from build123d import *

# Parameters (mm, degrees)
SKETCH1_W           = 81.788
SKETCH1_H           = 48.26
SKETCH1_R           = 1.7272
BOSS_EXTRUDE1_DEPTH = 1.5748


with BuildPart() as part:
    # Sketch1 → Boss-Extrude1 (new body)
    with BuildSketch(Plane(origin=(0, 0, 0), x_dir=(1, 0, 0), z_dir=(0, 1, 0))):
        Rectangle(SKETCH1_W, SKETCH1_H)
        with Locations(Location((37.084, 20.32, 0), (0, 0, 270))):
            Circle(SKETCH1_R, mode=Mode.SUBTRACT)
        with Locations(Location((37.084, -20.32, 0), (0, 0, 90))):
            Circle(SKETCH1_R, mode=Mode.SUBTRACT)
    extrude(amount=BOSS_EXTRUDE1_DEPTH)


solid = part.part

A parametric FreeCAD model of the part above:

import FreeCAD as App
import Part
import Sketcher
Q = App.Units.Quantity


def add_polygon(sketch, points):
    """Adds a closed chain of lines whose ends are joined by coincident constraints."""
    first, n = sketch.GeometryCount, len(points)
    for a, b in zip(points, points[1:] + points[:1]):
        sketch.addGeometry(Part.LineSegment(App.Vector(*a, 0), App.Vector(*b, 0)), False)
    for i in range(n):
        sketch.addConstraint(Sketcher.Constraint("Coincident", first + i, 2, first + (i + 1) % n, 1))

doc = App.newDocument("Part")
params = doc.addObject("Spreadsheet::Sheet", "Params")
for row, (alias, value) in enumerate([
    ("sketch1_diameter", "0.136 in"),
    ("sketch1_height", "1.9 in"),
    ("sketch1_width", "3.22 in"),
    ("pad1_length", "0.062 in"),
], start=1):
    params.set(f"A{row}", alias)
    params.set(f"B{row}", "=" + value)
    params.setAlias(f"B{row}", alias)

body = doc.addObject("PartDesign::Body", "Body")

# Sketch on XZ plane
sketch1 = doc.addObject("Sketcher::SketchObject", "Sketch")
body.addObject(sketch1)
sketch1.AttachmentSupport = (doc.XZ_Plane, [""])
sketch1.MapMode = "FlatFace"
add_polygon(sketch1, [(-40.894, -24.13), (-40.894, 24.13), (40.894, 24.13), (40.894, -24.13)])  # lines 0-3
sketch1.addGeometry(Part.Circle(App.Vector(37.084, 20.32, 0), App.Vector(0, 0, 1), 1.7272), False)  # 4
sketch1.addGeometry(Part.Circle(App.Vector(37.084, -20.32, 0), App.Vector(0, 0, 1), 1.7272), False)  # 5
sketch1.addConstraint([
    Sketcher.Constraint("Vertical", 0),
    Sketcher.Constraint("Horizontal", 1),
    Sketcher.Constraint("Vertical", 2),
    Sketcher.Constraint("Horizontal", 3),
    Sketcher.Constraint("Equal", 4, 5),
    Sketcher.Constraint("Symmetric", 0, 2, 2, 2, -1, 1),
    Sketcher.Constraint("Symmetric", 4, 3, 5, 3, -1),
    Sketcher.Constraint("Diameter", 4, Q("0.136 in")),
    Sketcher.Constraint("DistanceY", 0, 1, 0, 2, Q("1.9 in")),
    Sketcher.Constraint("DistanceX", 1, 1, 1, 2, Q("3.22 in")),
    Sketcher.Constraint("DistanceY", -1, 1, 4, 3, Q("0.8 in")),
    Sketcher.Constraint("DistanceX", -1, 1, 4, 3, Q("1.46 in")),
])
sketch1.setExpression("Constraints[11]", "Params.sketch1_diameter")
sketch1.setExpression("Constraints[12]", "Params.sketch1_height")
sketch1.setExpression("Constraints[13]", "Params.sketch1_width")
pad1 = doc.addObject("PartDesign::Pad", "Pad")
body.addObject(pad1)
pad1.Profile = sketch1
pad1.setExpression("Length", "Params.pad1_length")
pad1.Reversed = True

doc.recompute()
